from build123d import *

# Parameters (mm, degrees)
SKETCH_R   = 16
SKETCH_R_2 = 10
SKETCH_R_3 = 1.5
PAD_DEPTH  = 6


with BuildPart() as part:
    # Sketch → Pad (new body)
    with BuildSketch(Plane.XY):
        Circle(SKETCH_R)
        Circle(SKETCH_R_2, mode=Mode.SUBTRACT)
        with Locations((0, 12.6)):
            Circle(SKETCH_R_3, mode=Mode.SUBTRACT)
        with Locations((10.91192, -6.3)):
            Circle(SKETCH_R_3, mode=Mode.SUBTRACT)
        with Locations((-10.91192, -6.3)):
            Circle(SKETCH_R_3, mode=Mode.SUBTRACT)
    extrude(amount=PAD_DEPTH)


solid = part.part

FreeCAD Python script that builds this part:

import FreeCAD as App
import Part
import Sketcher

V = App.Vector
Q = App.Units.Quantity

doc = App.newDocument("Part")
body = doc.addObject("PartDesign::Body", "Body")

# Sketch on XY plane
sketch1 = body.newObject("Sketcher::SketchObject", "Sketch")
sketch1.AttachmentSupport = (doc.getObject("XY_Plane"), [""])
sketch1.MapMode = "FlatFace"
sketch1.addGeometry(Part.Circle(V(0, 0, 0), V(0, 0, 1), 16), False)
sketch1.addGeometry(Part.Circle(V(-10.9, -6.3, 0), V(0, 0, 1), 1.5), False)
sketch1.addGeometry(Part.Circle(V(0, 0, 0), V(0, 0, 1), 10), False)
sketch1.addGeometry(Part.Circle(V(10.9, -6.3, 0), V(0, 0, 1), 1.5), False)
sketch1.addGeometry(Part.Circle(V(0, 12.6, 0), V(0, 0, 1), 1.5), False)
sketch1.addConstraint(Sketcher.Constraint("Coincident", 0, 3, -1, 1))
sketch1.addConstraint(Sketcher.Constraint("Coincident", 2, 3, -1, 1))
sketch1.addConstraint(Sketcher.Constraint("Equal", 1, 3))
sketch1.addConstraint(Sketcher.Constraint("Equal", 3, 4))
sketch1.addConstraint(Sketcher.Constraint("Symmetric", 1, 3, 3, 3, -2))
sketch1.addConstraint(Sketcher.Constraint("PointOnObject", 4, 3, -2))
sketch1.addConstraint(Sketcher.Constraint("Diameter", 0, Q("32 mm")))
sketch1.addConstraint(Sketcher.Constraint("Diameter", 1, Q("3 mm")))
sketch1.addConstraint(Sketcher.Constraint("Diameter", 2, Q("20 mm")))
sketch1.addConstraint(Sketcher.Constraint("DistanceY", 1, 3, -1, 1, Q("6.3 mm")))
sketch1.addConstraint(Sketcher.Constraint("DistanceY", -1, 1, 4, 3, Q("12.6 mm")))
sketch1.addConstraint(Sketcher.Constraint("DistanceX", 1, 3, -1, 1, Q("10.91192 mm")))
pad1 = body.newObject("PartDesign::Pad", "Pad")
pad1.Profile = sketch1
pad1.Length = 6

doc.recompute()
